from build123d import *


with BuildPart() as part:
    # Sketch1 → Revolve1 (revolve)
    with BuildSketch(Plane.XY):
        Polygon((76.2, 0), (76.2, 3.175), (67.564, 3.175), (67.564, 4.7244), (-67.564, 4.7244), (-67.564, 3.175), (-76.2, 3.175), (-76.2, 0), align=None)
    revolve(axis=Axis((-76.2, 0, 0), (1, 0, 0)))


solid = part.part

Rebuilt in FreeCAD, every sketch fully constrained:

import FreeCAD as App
import Part
import Sketcher
Q = App.Units.Quantity

doc = App.newDocument("Part")
body = doc.addObject("PartDesign::Body", "Body")

# Sketch on XY plane
sketch1 = body.newObject("Sketcher::SketchObject", "Sketch")
sketch1.AttachmentSupport = (doc.getObject("XY_Plane"), [""])
sketch1.MapMode = "FlatFace"
sketch1.addGeometry(Part.LineSegment(App.Vector(76.2, 0, 0), App.Vector(76.2, 3.2, 0)), False)
sketch1.addGeometry(Part.LineSegment(App.Vector(76.2, 3.2, 0), App.Vector(67.6, 3.2, 0)), False)
sketch1.addGeometry(Part.LineSegment(App.Vector(67.6, 3.2, 0), App.Vector(67.6, 4.7, 0)), False)
sketch1.addGeometry(Part.LineSegment(App.Vector(67.6, 4.7, 0), App.Vector(-67.6, 4.7, 0)), False)
sketch1.addGeometry(Part.LineSegment(App.Vector(-67.6, 4.7, 0), App.Vector(-67.6, 3.2, 0)), False)
sketch1.addGeometry(Part.LineSegment(App.Vector(-67.6, 3.2, 0), App.Vector(-76.2, 3.2, 0)), False)
sketch1.addGeometry(Part.LineSegment(App.Vector(-76.2, 3.2, 0), App.Vector(-76.2, 0, 0)), False)
sketch1.addGeometry(Part.LineSegment(App.Vector(-76.2, 0, 0), App.Vector(76.2, 0, 0)), False)
sketch1.addConstraint(Sketcher.Constraint("Coincident", 0, 2, 1, 1))
sketch1.addConstraint(Sketcher.Constraint("Coincident", 1, 2, 2, 1))
sketch1.addConstraint(Sketcher.Constraint("Coincident", 2, 2, 3, 1))
sketch1.addConstraint(Sketcher.Constraint("Coincident", 3, 2, 4, 1))
sketch1.addConstraint(Sketcher.Constraint("Coincident", 4, 2, 5, 1))
sketch1.addConstraint(Sketcher.Constraint("Coincident", 5, 2, 6, 1))
sketch1.addConstraint(Sketcher.Constraint("Coincident", 6, 2, 7, 1))
sketch1.addConstraint(Sketcher.Constraint("Coincident", 7, 2, 0, 1))
sketch1.addConstraint(Sketcher.Constraint("Vertical", 0))
sketch1.addConstraint(Sketcher.Constraint("Horizontal", 1))
sketch1.addConstraint(Sketcher.Constraint("Vertical", 2))
sketch1.addConstraint(Sketcher.Constraint("Horizontal", 3))
sketch1.addConstraint(Sketcher.Constraint("Vertical", 4))
sketch1.addConstraint(Sketcher.Constraint("Horizontal", 5))
sketch1.addConstraint(Sketcher.Constraint("Vertical", 6))
sketch1.addConstraint(Sketcher.Constraint("Horizontal", 7))
sketch1.addConstraint(Sketcher.Constraint("Symmetric", 6, 2, 7, 2, -1, 1))
sketch1.addConstraint(Sketcher.Constraint("Symmetric", 1, 2, 4, 2, -2))
sketch1.addConstraint(Sketcher.Constraint("DistanceX", 7, 1, 7, 2, Q("6 in")))
sketch1.addConstraint(Sketcher.Constraint("DistanceX", 1, 2, 1, 1, Q("0.34 in")))
sketch1.addConstraint(Sketcher.Constraint("DistanceY", 0, 1, 0, 2, Q("0.125 in")))
sketch1.addConstraint(Sketcher.Constraint("DistanceY", 2, 1, 2, 2, Q("0.061 in")))
revolution = body.newObject("PartDesign::Revolution", "Revolution")
revolution.Profile = sketch1
revolution.ReferenceAxis = (sketch1, ["H_Axis"])
revolution.Angle = 360

doc.recompute()
